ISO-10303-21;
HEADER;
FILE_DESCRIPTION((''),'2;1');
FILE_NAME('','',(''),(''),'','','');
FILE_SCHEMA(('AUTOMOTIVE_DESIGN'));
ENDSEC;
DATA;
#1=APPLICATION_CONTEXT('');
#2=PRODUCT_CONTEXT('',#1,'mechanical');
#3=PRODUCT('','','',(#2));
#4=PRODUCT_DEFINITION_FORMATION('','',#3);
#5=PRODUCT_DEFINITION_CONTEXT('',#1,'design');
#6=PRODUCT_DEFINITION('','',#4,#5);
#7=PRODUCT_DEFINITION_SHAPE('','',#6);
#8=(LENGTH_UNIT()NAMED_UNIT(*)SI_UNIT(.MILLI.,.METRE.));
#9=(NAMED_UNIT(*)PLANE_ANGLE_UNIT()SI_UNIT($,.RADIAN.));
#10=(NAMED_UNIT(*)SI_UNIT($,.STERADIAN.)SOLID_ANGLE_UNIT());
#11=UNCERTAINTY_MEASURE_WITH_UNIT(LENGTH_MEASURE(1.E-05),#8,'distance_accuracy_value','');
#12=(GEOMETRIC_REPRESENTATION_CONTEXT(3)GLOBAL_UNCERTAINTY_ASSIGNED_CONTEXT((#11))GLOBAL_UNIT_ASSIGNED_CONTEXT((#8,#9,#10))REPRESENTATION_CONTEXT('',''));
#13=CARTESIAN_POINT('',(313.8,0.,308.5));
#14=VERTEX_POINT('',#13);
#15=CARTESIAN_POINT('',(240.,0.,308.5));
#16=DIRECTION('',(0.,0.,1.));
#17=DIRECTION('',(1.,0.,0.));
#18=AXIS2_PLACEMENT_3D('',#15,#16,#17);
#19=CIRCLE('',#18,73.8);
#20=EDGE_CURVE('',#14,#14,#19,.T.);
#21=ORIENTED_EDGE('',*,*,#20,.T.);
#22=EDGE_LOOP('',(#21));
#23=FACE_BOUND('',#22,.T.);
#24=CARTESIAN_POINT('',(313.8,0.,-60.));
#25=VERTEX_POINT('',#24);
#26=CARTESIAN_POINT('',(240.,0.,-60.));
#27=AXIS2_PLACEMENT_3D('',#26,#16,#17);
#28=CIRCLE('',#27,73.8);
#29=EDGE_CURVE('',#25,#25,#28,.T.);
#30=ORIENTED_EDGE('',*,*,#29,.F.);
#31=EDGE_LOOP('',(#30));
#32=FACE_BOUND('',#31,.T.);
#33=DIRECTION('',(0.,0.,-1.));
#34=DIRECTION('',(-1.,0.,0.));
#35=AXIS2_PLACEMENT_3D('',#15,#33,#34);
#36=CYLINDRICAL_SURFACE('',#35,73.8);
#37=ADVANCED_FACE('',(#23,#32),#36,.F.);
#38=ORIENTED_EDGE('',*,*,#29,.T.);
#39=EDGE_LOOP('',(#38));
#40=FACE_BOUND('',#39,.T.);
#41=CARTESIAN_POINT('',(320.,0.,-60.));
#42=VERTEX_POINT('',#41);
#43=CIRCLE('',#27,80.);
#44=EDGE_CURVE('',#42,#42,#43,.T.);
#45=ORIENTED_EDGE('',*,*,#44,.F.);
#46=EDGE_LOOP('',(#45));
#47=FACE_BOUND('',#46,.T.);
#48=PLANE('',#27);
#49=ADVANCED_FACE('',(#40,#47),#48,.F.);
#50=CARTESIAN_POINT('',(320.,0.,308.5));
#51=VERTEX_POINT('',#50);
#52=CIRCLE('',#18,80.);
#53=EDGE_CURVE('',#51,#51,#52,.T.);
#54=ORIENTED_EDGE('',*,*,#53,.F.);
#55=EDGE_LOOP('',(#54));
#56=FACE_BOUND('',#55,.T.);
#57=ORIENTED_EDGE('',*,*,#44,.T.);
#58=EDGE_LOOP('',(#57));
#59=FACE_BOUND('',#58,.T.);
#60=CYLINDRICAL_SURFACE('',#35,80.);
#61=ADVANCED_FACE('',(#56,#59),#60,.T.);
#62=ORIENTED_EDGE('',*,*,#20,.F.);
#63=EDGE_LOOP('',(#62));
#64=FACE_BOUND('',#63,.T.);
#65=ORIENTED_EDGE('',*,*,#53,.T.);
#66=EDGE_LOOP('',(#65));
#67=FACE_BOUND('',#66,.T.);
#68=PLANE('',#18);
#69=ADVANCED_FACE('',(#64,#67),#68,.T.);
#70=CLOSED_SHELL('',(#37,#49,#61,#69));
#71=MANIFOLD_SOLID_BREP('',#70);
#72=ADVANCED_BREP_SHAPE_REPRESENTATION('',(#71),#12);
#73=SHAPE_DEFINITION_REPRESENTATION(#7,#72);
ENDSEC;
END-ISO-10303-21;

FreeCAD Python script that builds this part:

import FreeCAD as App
import Part
import Sketcher
from FreeCAD import Vector
Q = App.Units.Quantity

doc = App.newDocument("Part")
body = doc.addObject("PartDesign::Body", "Body")

# Sketch on XY plane
sketch1 = body.newObject("Sketcher::SketchObject", "Sketch")
sketch1.AttachmentSupport = (doc.getObject("XY_Plane"), [""])
sketch1.MapMode = "FlatFace"
sketch1.AttachmentOffset = App.Placement(Vector(0, 0, -60), App.Rotation())
sketch1.addGeometry([
    Part.Circle(Vector(240, 0, 0), Vector(0, 0, 1), 80),
    Part.Circle(Vector(240, 0, 0), Vector(0, 0, 1), 74),
], False)
sketch1.addConstraint([
    Sketcher.Constraint("Coincident", 1, 3, 0, 3),
    Sketcher.Constraint("PointOnObject", 0, 3, -1),
    Sketcher.Constraint("Diameter", 0, Q("160 mm")),
    Sketcher.Constraint("Diameter", 1, Q("147.6 mm")),
    Sketcher.Constraint("DistanceX", -1, 1, 0, 3, Q("240 mm")),
])
pad1 = body.newObject("PartDesign::Pad", "Pad")
pad1.Profile = sketch1
pad1.Length = 368.5

doc.recompute()
